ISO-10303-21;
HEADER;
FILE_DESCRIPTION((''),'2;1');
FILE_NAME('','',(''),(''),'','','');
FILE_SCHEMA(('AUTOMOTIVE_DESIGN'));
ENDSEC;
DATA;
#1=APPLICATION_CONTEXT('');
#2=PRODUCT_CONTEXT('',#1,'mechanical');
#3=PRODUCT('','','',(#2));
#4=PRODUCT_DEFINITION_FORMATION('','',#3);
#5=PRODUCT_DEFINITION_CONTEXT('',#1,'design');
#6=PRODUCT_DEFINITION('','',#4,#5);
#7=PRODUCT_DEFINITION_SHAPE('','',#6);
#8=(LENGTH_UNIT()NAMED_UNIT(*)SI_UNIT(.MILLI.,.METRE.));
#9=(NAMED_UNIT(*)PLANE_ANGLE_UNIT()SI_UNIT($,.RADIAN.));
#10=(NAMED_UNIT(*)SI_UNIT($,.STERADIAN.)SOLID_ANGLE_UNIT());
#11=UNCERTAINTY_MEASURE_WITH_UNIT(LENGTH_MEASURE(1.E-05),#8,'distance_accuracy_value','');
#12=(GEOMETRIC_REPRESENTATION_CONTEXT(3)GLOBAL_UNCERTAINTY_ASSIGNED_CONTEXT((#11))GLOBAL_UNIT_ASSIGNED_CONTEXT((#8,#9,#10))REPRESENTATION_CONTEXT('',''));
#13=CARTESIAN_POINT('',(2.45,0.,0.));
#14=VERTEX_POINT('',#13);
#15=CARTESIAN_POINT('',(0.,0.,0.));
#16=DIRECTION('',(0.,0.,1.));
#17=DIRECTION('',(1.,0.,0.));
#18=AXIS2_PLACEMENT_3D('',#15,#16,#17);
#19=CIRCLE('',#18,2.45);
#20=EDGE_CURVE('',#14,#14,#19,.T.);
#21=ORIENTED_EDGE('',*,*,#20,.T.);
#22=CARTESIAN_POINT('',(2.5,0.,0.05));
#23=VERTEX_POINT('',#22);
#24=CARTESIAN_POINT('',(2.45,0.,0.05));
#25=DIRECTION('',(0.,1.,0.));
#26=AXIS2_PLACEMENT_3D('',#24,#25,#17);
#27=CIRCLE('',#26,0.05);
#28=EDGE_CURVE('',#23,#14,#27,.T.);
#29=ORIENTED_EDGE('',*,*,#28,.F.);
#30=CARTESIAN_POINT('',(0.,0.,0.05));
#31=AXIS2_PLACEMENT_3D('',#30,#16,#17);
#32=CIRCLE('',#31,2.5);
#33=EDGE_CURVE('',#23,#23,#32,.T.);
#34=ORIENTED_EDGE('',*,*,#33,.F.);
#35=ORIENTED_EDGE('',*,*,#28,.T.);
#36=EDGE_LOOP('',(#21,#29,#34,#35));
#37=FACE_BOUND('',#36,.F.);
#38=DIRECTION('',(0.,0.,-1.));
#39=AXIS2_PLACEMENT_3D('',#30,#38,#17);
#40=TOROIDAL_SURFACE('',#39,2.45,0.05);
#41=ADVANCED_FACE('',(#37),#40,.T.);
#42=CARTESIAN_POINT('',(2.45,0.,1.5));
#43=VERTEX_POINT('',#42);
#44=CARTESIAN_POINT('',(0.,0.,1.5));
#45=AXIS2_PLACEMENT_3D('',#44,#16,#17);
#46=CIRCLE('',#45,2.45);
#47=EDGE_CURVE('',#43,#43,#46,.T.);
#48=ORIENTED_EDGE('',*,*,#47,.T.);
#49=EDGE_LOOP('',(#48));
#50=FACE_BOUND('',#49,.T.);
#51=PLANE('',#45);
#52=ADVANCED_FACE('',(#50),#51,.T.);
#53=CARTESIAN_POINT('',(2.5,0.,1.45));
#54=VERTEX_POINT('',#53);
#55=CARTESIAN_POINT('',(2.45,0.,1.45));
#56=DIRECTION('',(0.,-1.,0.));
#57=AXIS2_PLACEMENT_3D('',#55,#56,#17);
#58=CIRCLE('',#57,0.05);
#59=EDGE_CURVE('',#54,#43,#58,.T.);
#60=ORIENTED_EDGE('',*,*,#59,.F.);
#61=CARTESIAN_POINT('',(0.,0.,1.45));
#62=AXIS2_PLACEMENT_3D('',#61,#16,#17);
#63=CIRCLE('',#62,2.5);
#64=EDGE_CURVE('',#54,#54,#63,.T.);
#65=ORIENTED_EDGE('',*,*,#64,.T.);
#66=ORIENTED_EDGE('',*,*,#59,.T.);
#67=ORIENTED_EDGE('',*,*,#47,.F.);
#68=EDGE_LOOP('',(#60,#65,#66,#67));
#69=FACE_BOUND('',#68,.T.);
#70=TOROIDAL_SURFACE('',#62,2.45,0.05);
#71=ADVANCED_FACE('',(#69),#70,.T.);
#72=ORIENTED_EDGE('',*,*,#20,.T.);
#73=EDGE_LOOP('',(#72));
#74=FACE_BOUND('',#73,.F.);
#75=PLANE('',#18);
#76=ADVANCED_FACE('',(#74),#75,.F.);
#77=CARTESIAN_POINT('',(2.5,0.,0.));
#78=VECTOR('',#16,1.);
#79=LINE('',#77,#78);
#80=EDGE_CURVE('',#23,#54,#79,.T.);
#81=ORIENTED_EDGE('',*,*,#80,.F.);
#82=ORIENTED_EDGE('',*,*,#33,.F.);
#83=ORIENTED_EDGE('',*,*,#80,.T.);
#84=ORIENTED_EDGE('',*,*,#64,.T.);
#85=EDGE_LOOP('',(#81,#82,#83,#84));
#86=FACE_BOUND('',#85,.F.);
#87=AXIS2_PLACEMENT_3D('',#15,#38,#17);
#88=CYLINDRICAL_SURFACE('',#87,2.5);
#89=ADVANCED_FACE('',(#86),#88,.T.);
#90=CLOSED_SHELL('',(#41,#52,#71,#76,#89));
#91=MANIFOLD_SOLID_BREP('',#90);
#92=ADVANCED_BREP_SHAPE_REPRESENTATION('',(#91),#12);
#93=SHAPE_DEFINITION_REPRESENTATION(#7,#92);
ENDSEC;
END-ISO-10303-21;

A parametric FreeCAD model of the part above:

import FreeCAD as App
import Part
import Sketcher

V = App.Vector
Q = App.Units.Quantity


def edges_at(feature, points):
    """Names of the edges that pass closest to the given points."""
    edges = feature.Shape.Edges
    near = lambda p: min(range(len(edges)), key=lambda i: edges[i].distToShape(Part.Vertex(*p))[0])
    return sorted({f"Edge{near(p) + 1}" for p in points})

doc = App.newDocument("Part")
params = doc.addObject("Spreadsheet::Sheet", "Params")
for row, (alias, value) in enumerate([
    ("sketch1_diameter", "5 mm"),
    ("pad1_length", "1.5 mm"),
    ("fillet_radius", "0.05 mm"),
], start=1):
    params.set(f"A{row}", alias)
    params.set(f"B{row}", "=" + value)
    params.setAlias(f"B{row}", alias)

body = doc.addObject("PartDesign::Body", "Body")

sketch1 = body.newObject("Sketcher::SketchObject", "Sketch")
sketch1.AttachmentSupport = (doc.getObject("XY_Plane"), [""])
sketch1.MapMode = "FlatFace"
sketch1.addGeometry(Part.Circle(V(0, 0, 0), V(0, 0, 1), 2.5), False)
sketch1.addConstraint([
    Sketcher.Constraint("Coincident", 0, 3, -1, 1),
    Sketcher.Constraint("Diameter", 0, Q("5 mm")),
])
sketch1.setExpression("Constraints[1]", "Params.sketch1_diameter")
pad1 = body.newObject("PartDesign::Pad", "Pad")
pad1.Profile = sketch1
pad1.setExpression("Length", "Params.pad1_length")
doc.recompute()

fillet = body.newObject("PartDesign::Fillet", "Fillet")
fillet.Base = (pad1, edges_at(pad1, [(-2.331, -0.904, 1.5), (-2.331, -0.904, 0)]))
fillet.setExpression("Radius", "Params.fillet_radius")

doc.recompute()
